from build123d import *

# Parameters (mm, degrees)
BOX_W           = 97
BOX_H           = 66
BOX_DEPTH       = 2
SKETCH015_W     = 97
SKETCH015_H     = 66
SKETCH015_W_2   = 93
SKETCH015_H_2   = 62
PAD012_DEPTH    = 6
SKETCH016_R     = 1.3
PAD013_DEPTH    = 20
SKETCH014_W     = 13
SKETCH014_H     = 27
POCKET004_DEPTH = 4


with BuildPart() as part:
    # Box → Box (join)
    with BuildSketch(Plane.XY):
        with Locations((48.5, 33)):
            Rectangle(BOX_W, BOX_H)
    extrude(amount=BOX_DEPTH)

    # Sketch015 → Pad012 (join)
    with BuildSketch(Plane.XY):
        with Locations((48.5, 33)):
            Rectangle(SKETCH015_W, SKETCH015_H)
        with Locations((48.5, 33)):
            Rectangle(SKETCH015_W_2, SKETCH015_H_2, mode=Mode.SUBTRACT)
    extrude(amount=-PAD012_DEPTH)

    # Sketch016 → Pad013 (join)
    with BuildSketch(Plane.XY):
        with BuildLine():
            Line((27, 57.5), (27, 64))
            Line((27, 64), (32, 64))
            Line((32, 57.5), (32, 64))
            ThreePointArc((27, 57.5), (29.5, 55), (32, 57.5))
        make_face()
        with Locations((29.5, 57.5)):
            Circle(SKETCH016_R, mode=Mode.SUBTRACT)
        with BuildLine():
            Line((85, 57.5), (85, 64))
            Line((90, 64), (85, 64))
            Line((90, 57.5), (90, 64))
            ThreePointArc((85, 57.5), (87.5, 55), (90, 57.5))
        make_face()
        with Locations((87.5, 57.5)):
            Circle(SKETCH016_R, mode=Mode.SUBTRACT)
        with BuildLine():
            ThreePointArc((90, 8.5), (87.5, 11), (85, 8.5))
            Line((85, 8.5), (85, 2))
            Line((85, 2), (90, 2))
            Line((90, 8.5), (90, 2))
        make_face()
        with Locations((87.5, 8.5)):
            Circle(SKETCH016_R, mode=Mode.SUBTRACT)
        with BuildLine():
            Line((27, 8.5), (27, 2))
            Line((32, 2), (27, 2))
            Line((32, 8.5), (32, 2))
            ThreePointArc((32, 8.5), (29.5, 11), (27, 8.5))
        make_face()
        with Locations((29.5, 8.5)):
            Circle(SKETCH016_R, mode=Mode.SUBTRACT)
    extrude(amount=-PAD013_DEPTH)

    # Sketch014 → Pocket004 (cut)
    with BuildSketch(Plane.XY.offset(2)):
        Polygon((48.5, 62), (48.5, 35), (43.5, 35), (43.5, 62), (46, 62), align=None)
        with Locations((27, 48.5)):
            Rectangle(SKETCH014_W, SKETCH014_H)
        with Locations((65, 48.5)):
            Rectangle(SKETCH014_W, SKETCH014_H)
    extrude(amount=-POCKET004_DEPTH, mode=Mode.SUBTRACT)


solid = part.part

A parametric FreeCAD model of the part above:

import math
import FreeCAD as App
import Part
import Sketcher
from FreeCAD import Vector
Q = App.Units.Quantity


def add_polygon(sketch, points):
    """Adds a closed chain of lines whose ends are joined by coincident constraints."""
    first, n = sketch.GeometryCount, len(points)
    for a, b in zip(points, points[1:] + points[:1]):
        sketch.addGeometry(Part.LineSegment(App.Vector(*a, 0), App.Vector(*b, 0)), False)
    for i in range(n):
        sketch.addConstraint(Sketcher.Constraint("Coincident", first + i, 2, first + (i + 1) % n, 1))

doc = App.newDocument("Part")
body = doc.addObject("PartDesign::Body", "Body")

sketch1 = doc.addObject("Sketcher::SketchObject", "Sketch")
body.addObject(sketch1)
sketch1.AttachmentSupport = (doc.XY_Plane, [""])
sketch1.MapMode = "FlatFace"
add_polygon(sketch1, [(0, 66), (0, 0), (97, 0), (97, 66)])
sketch1.addConstraint([
    Sketcher.Constraint("Vertical", 0),
    Sketcher.Constraint("Horizontal", 1),
    Sketcher.Constraint("Vertical", 2),
    Sketcher.Constraint("Horizontal", 3),
    Sketcher.Constraint("Coincident", 0, 2, -1, 1),
    Sketcher.Constraint("DistanceX", 1, 1, 1, 2, Q("97 mm")),
    Sketcher.Constraint("DistanceY", 0, 2, 0, 1, Q("66 mm")),
])
pad1 = doc.addObject("PartDesign::Pad", "Pad")
body.addObject(pad1)
pad1.Profile = sketch1
pad1.Length = 2

sketch2 = doc.addObject("Sketcher::SketchObject", "Sketch001")
body.addObject(sketch2)
sketch2.AttachmentSupport = (doc.XY_Plane, [""])
sketch2.MapMode = "FlatFace"
add_polygon(sketch2, [(0, 66), (0, 0), (97, 0), (97, 66)])
add_polygon(sketch2, [(95, 2), (2, 2), (2, 64), (95, 64)])
sketch2.addConstraint([
    Sketcher.Constraint("Vertical", 0),
    Sketcher.Constraint("Horizontal", 1),
    Sketcher.Constraint("Vertical", 2),
    Sketcher.Constraint("Horizontal", 3),
    Sketcher.Constraint("Horizontal", 4),
    Sketcher.Constraint("Vertical", 5),
    Sketcher.Constraint("Horizontal", 6),
    Sketcher.Constraint("Vertical", 7),
    Sketcher.Constraint("Coincident", 0, 2, -1, 1),
    Sketcher.Constraint("DistanceX", 1, 1, 1, 2, Q("97 mm")),
    Sketcher.Constraint("DistanceX", 4, 2, 4, 1, Q("93 mm")),
    Sketcher.Constraint("DistanceY", 0, 2, 0, 1, Q("66 mm")),
    Sketcher.Constraint("DistanceY", 5, 1, 5, 2, Q("62 mm")),
    Sketcher.Constraint("DistanceX", -1, 1, 4, 2, Q("2 mm")),
    Sketcher.Constraint("DistanceY", -1, 1, 4, 2, Q("2 mm")),
])
pad2 = doc.addObject("PartDesign::Pad", "Pad001")
body.addObject(pad2)
pad2.Profile = sketch2
pad2.Length = 6
pad2.Reversed = True

sketch3 = doc.addObject("Sketcher::SketchObject", "Sketch002")
body.addObject(sketch3)
sketch3.AttachmentSupport = (doc.XY_Plane, [""])
sketch3.MapMode = "FlatFace"
sketch3.addGeometry([
    Part.LineSegment(Vector(27, 64, 0), Vector(27, 57.5, 0)),
    Part.ArcOfCircle(Part.Circle(Vector(29.5, 57.5, 0), Vector(0, 0, 1), 2.5), math.radians(180), math.radians(360)),
    Part.LineSegment(Vector(32, 57.5, 0), Vector(32, 64, 0)),
    Part.LineSegment(Vector(32, 64, 0), Vector(27, 64, 0)),
    Part.Circle(Vector(29.5, 57.5, 0), Vector(0, 0, 1), 1.3),
    Part.LineSegment(Vector(85, 64, 0), Vector(85, 57.5, 0)),
    Part.ArcOfCircle(Part.Circle(Vector(87.5, 57.5, 0), Vector(0, 0, 1), 2.5), math.radians(180), math.radians(360)),
    Part.LineSegment(Vector(90, 57.5, 0), Vector(90, 64, 0)),
    Part.LineSegment(Vector(90, 64, 0), Vector(85, 64, 0)),
    Part.Circle(Vector(87.5, 57.5, 0), Vector(0, 0, 1), 1.3),
    Part.ArcOfCircle(Part.Circle(Vector(87.5, 8.5, 0), Vector(0, 0, 1), 2.5), math.radians(0), math.radians(180)),
    Part.LineSegment(Vector(85, 8.5, 0), Vector(85, 2, 0)),
    Part.LineSegment(Vector(85, 2, 0), Vector(90, 2, 0)),
    Part.LineSegment(Vector(90, 2, 0), Vector(90, 8.5, 0)),
    Part.Circle(Vector(87.5, 8.5, 0), Vector(0, 0, 1), 1.3),
    Part.LineSegment(Vector(27, 8.5, 0), Vector(27, 2, 0)),
    Part.LineSegment(Vector(27, 2, 0), Vector(32, 2, 0)),
    Part.LineSegment(Vector(32, 2, 0), Vector(32, 8.5, 0)),
    Part.ArcOfCircle(Part.Circle(Vector(29.5, 8.5, 0), Vector(0, 0, 1), 2.5), math.radians(0), math.radians(180)),
    Part.Circle(Vector(29.5, 8.5, 0), Vector(0, 0, 1), 1.3),
], False)
sketch3.addConstraint([
    Sketcher.Constraint("Tangent", 0, 2, 1, 1),
    Sketcher.Constraint("Tangent", 1, 2, 2, 1),
    Sketcher.Constraint("Coincident", 2, 2, 3, 1),
    Sketcher.Constraint("Coincident", 3, 2, 0, 1),
    Sketcher.Constraint("Tangent", 5, 2, 6, 1),
    Sketcher.Constraint("Tangent", 6, 2, 7, 1),
    Sketcher.Constraint("Coincident", 7, 2, 8, 1),
    Sketcher.Constraint("Coincident", 8, 2, 5, 1),
    Sketcher.Constraint("Tangent", 10, 2, 11, 1),
    Sketcher.Constraint("Coincident", 11, 2, 12, 1),
    Sketcher.Constraint("Coincident", 12, 2, 13, 1),
    Sketcher.Constraint("Tangent", 13, 2, 10, 1),
    Sketcher.Constraint("Coincident", 15, 2, 16, 1),
    Sketcher.Constraint("Coincident", 16, 2, 17, 1),
    Sketcher.Constraint("Tangent", 17, 2, 18, 1),
    Sketcher.Constraint("Tangent", 18, 2, 15, 1),
    Sketcher.Constraint("Vertical", 0),
    Sketcher.Constraint("Vertical", 2),
    Sketcher.Constraint("Horizontal", 3),
    Sketcher.Constraint("Vertical", 5),
    Sketcher.Constraint("Vertical", 7),
    Sketcher.Constraint("Horizontal", 8),
    Sketcher.Constraint("Vertical", 11),
    Sketcher.Constraint("Horizontal", 12),
    Sketcher.Constraint("Vertical", 13),
    Sketcher.Constraint("Vertical", 15),
    Sketcher.Constraint("Horizontal", 16),
    Sketcher.Constraint("Vertical", 17),
    Sketcher.Constraint("Coincident", 4, 3, 1, 3),
    Sketcher.Constraint("Coincident", 9, 3, 6, 3),
    Sketcher.Constraint("Coincident", 14, 3, 10, 3),
    Sketcher.Constraint("Coincident", 19, 3, 18, 3),
    Sketcher.Constraint("Equal", 1, 6),
    Sketcher.Constraint("Equal", 4, 9),
    Sketcher.Constraint("Equal", 6, 10),
    Sketcher.Constraint("Equal", 9, 14),
    Sketcher.Constraint("Equal", 10, 18),
    Sketcher.Constraint("Equal", 14, 19),
    Sketcher.Constraint("Horizontal", 4, 3, 6, 3),
    Sketcher.Constraint("Horizontal", 14, 3, 18, 3),
    Sketcher.Constraint("Horizontal", 3, 2, 7, 2),
    Sketcher.Constraint("Horizontal", 12, 2, 15, 2),
    Sketcher.Constraint("Vertical", 9, 3, 10, 3),
    Sketcher.Constraint("Vertical", 4, 3, 18, 3),
    Sketcher.Constraint("Equal", 7, 11),
    Sketcher.Constraint("Diameter", 4, Q("2.6 mm")),
    Sketcher.Constraint("Radius", 1, Q("2.5 mm")),
    Sketcher.Constraint("DistanceY", 0, 2, 0, 1, Q("6.5 mm")),
    Sketcher.Constraint("DistanceX", -1, 1, 0, 2, Q("27 mm")),
    Sketcher.Constraint("DistanceY", -1, 1, 2, 2, Q("64 mm")),
    Sketcher.Constraint("DistanceX", -1, 1, 5, 2, Q("85 mm")),
    Sketcher.Constraint("DistanceY", -1, 1, 11, 2, Q("2 mm")),
])
pad3 = doc.addObject("PartDesign::Pad", "Pad002")
body.addObject(pad3)
pad3.Profile = sketch3
pad3.Length = 20
pad3.Reversed = True

sketch4 = doc.addObject("Sketcher::SketchObject", "Sketch003")
body.addObject(sketch4)
sketch4.AttachmentSupport = (doc.XY_Plane, [""])
sketch4.MapMode = "FlatFace"
sketch4.AttachmentOffset = App.Placement(Vector(0, 0, 2), App.Rotation())
add_polygon(sketch4, [(48, 35), (48, 62), (44, 62), (44, 35)])
add_polygon(sketch4, [(20, 62), (20, 35), (34, 35), (34, 62)])
add_polygon(sketch4, [(58, 62), (58, 35), (72, 35), (72, 62)])
sketch4.addConstraint([
    Sketcher.Constraint("Vertical", 0),
    Sketcher.Constraint("Horizontal", 1),
    Sketcher.Constraint("Vertical", 2),
    Sketcher.Constraint("Horizontal", 3),
    Sketcher.Constraint("Vertical", 4),
    Sketcher.Constraint("Horizontal", 5),
    Sketcher.Constraint("Vertical", 6),
    Sketcher.Constraint("Horizontal", 7),
    Sketcher.Constraint("Vertical", 8),
    Sketcher.Constraint("Horizontal", 9),
    Sketcher.Constraint("Vertical", 10),
    Sketcher.Constraint("Horizontal", 11),
    Sketcher.Constraint("Horizontal", 3, 2, 4, 2),
    Sketcher.Constraint("Horizontal", 1, 2, 6, 2),
    Sketcher.Constraint("Horizontal", 5, 2, 8, 2),
    Sketcher.Constraint("Horizontal", 7, 2, 10, 2),
    Sketcher.Constraint("Equal", 7, 9),
    Sketcher.Constraint("DistanceX", 1, 2, 1, 1, Q("5 mm")),
    Sketcher.Constraint("DistanceX", 5, 1, 5, 2, Q("13 mm")),
    Sketcher.Constraint("DistanceY", 0, 1, 0, 2, Q("27 mm")),
    Sketcher.Constraint("DistanceY", -1, 1, 0, 2, Q("62 mm")),
    Sketcher.Constraint("DistanceX", 4, 2, 2, 2, Q("23 mm")),
    Sketcher.Constraint("DistanceX", 3, 2, 8, 2, Q("10 mm")),
    Sketcher.Constraint("DistanceX", -1, 1, 0, 2, Q("48.5 mm")),
])
pocket1 = doc.addObject("PartDesign::Pocket", "Pocket")
body.addObject(pocket1)
pocket1.Profile = sketch4
pocket1.Length = 4

doc.recompute()
